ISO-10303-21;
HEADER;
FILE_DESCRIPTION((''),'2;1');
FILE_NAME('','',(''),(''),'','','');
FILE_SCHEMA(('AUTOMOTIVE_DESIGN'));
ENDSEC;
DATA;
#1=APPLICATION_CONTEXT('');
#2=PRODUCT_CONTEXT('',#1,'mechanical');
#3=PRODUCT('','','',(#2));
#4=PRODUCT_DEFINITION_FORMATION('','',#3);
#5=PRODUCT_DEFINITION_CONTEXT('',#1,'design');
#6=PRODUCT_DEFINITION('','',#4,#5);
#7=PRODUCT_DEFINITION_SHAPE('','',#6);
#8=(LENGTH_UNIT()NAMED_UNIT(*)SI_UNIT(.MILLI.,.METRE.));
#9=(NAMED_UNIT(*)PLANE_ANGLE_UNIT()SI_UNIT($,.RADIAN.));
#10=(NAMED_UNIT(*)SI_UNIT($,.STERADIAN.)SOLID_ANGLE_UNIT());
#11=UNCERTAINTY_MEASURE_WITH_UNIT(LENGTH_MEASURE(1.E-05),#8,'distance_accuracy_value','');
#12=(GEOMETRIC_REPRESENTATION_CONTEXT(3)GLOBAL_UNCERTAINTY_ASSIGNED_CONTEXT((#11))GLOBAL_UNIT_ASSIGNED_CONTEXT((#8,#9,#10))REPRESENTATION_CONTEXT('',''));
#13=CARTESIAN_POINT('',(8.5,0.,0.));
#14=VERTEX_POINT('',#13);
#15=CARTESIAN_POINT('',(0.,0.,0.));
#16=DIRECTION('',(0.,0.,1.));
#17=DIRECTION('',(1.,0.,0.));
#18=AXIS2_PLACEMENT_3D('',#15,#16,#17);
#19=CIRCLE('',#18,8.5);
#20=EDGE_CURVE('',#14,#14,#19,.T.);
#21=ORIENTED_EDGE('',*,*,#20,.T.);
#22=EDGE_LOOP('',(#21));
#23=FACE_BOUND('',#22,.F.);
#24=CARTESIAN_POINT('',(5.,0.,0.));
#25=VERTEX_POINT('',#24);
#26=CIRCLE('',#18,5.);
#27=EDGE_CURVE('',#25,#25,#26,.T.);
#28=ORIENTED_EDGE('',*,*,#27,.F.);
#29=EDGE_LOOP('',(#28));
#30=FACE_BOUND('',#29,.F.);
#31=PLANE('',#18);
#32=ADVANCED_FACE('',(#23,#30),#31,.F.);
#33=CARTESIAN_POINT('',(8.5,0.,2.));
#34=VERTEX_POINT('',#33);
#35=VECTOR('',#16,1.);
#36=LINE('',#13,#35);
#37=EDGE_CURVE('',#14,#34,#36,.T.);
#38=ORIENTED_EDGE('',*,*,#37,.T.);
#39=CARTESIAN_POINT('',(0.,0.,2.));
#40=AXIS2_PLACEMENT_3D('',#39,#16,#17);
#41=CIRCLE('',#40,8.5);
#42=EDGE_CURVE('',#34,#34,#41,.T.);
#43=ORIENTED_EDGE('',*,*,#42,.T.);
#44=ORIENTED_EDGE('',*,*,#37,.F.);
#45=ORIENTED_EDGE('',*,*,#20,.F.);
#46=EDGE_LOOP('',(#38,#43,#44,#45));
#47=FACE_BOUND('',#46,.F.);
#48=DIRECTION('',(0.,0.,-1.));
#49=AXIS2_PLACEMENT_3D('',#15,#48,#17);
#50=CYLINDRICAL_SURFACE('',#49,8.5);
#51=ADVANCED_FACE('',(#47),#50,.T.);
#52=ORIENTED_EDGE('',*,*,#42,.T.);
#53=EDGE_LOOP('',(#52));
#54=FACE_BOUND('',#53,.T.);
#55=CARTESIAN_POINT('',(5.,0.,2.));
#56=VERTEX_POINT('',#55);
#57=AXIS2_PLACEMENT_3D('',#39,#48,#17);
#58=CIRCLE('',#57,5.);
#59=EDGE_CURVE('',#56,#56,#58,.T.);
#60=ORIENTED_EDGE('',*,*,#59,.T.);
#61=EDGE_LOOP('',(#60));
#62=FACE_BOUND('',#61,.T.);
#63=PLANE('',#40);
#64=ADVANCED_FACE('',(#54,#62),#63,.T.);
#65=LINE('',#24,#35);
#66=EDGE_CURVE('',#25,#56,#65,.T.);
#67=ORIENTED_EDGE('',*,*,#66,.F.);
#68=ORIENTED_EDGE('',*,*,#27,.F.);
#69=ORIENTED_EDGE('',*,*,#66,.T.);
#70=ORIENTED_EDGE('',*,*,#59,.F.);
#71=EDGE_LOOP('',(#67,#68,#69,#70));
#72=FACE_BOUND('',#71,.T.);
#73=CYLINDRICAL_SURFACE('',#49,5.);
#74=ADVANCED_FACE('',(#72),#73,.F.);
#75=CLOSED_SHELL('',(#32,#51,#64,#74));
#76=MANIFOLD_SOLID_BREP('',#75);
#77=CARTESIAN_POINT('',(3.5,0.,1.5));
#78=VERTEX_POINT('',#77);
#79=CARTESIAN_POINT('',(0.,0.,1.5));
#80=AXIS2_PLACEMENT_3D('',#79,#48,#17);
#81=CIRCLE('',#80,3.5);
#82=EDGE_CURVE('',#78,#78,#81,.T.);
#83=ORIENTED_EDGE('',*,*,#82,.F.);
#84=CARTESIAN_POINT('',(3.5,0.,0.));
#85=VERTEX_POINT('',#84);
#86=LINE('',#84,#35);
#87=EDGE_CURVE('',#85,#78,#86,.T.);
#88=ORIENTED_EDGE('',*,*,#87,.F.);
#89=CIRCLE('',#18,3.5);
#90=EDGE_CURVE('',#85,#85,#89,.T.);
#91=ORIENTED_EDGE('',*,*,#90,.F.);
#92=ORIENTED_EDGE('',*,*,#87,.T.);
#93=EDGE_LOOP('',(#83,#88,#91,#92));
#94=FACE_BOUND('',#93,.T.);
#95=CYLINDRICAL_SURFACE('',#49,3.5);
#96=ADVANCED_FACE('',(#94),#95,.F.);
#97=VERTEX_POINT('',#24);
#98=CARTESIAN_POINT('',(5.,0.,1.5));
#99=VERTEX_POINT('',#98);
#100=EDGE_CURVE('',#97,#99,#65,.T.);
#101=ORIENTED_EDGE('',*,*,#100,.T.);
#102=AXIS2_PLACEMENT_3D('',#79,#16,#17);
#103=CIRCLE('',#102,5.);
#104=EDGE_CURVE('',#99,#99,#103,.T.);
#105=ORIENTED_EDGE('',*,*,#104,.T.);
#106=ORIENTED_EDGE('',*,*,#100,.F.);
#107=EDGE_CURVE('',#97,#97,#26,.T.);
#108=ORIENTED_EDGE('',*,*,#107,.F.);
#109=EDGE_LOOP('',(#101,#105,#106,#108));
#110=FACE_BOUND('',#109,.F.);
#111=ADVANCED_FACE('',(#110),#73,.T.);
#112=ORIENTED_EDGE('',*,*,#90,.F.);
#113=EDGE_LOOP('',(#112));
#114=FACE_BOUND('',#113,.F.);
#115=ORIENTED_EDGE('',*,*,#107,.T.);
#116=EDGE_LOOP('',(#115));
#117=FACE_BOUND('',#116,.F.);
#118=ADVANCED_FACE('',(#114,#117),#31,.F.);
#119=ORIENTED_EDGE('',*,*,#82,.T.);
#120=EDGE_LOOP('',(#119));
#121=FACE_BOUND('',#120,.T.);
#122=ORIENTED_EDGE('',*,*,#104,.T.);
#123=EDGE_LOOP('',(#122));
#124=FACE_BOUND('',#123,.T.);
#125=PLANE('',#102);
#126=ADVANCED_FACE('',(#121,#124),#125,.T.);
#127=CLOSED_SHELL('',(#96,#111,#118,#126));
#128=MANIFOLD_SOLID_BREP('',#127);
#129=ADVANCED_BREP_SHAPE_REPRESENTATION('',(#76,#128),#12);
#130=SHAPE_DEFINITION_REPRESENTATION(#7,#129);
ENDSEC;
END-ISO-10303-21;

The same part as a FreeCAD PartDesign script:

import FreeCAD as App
import Part
import Sketcher

V = App.Vector
Q = App.Units.Quantity

doc = App.newDocument("Part")
body = doc.addObject("PartDesign::Body", "Body")

sketch1 = body.newObject("Sketcher::SketchObject", "Sketch")
sketch1.AttachmentSupport = (doc.getObject("XY_Plane"), [""])
sketch1.MapMode = "FlatFace"
sketch1.addGeometry(Part.Circle(V(0, 0, 0), V(0, 0, 1), 8.5), False)
sketch1.addConstraint([
    Sketcher.Constraint("Coincident", 0, 3, -1, 1),
    Sketcher.Constraint("Diameter", 0, Q("17 mm")),
])
pad1 = body.newObject("PartDesign::Pad", "Pad")
pad1.Profile = sketch1
pad1.Length = 2

sketch2 = body.newObject("Sketcher::SketchObject", "Sketch001")
sketch2.AttachmentSupport = (doc.getObject("XY_Plane"), [""])
sketch2.MapMode = "FlatFace"
sketch2.addGeometry(Part.Circle(V(0, 0, 0), V(0, 0, 1), 5), False)
sketch2.addConstraint([
    Sketcher.Constraint("Coincident", 0, 3, -1, 1),
    Sketcher.Constraint("Diameter", 0, Q("10 mm")),
])
pocket1 = body.newObject("PartDesign::Pocket", "Pocket")
pocket1.Profile = sketch2
pocket1.Length = 5
pocket1.Reversed = True
body2 = doc.addObject("PartDesign::Body", "Body001")

sketch3 = body2.newObject("Sketcher::SketchObject", "Sketch002")
sketch3.AttachmentSupport = (doc.getObject("XY_Plane001"), [""])
sketch3.MapMode = "FlatFace"
sketch3.addGeometry(Part.Circle(V(0, 0, 0), V(0, 0, 1), 5), False)
sketch3.addConstraint([
    Sketcher.Constraint("Coincident", 0, 3, -1, 1),
    Sketcher.Constraint("Diameter", 0, Q("10 mm")),
])
pad2 = body2.newObject("PartDesign::Pad", "Pad001")
pad2.Profile = sketch3
pad2.Length = 1.5

sketch4 = body2.newObject("Sketcher::SketchObject", "Sketch003")
sketch4.AttachmentSupport = (doc.getObject("XY_Plane001"), [""])
sketch4.MapMode = "FlatFace"
sketch4.addGeometry(Part.Circle(V(0, 0, 0), V(0, 0, 1), 3.5), False)
sketch4.addConstraint([
    Sketcher.Constraint("Coincident", 0, 3, -1, 1),
    Sketcher.Constraint("Diameter", 0, Q("7 mm")),
])
pocket2 = body2.newObject("PartDesign::Pocket", "Pocket001")
pocket2.Profile = sketch4
pocket2.Length = 25
pocket2.Reversed = True

doc.recompute()
